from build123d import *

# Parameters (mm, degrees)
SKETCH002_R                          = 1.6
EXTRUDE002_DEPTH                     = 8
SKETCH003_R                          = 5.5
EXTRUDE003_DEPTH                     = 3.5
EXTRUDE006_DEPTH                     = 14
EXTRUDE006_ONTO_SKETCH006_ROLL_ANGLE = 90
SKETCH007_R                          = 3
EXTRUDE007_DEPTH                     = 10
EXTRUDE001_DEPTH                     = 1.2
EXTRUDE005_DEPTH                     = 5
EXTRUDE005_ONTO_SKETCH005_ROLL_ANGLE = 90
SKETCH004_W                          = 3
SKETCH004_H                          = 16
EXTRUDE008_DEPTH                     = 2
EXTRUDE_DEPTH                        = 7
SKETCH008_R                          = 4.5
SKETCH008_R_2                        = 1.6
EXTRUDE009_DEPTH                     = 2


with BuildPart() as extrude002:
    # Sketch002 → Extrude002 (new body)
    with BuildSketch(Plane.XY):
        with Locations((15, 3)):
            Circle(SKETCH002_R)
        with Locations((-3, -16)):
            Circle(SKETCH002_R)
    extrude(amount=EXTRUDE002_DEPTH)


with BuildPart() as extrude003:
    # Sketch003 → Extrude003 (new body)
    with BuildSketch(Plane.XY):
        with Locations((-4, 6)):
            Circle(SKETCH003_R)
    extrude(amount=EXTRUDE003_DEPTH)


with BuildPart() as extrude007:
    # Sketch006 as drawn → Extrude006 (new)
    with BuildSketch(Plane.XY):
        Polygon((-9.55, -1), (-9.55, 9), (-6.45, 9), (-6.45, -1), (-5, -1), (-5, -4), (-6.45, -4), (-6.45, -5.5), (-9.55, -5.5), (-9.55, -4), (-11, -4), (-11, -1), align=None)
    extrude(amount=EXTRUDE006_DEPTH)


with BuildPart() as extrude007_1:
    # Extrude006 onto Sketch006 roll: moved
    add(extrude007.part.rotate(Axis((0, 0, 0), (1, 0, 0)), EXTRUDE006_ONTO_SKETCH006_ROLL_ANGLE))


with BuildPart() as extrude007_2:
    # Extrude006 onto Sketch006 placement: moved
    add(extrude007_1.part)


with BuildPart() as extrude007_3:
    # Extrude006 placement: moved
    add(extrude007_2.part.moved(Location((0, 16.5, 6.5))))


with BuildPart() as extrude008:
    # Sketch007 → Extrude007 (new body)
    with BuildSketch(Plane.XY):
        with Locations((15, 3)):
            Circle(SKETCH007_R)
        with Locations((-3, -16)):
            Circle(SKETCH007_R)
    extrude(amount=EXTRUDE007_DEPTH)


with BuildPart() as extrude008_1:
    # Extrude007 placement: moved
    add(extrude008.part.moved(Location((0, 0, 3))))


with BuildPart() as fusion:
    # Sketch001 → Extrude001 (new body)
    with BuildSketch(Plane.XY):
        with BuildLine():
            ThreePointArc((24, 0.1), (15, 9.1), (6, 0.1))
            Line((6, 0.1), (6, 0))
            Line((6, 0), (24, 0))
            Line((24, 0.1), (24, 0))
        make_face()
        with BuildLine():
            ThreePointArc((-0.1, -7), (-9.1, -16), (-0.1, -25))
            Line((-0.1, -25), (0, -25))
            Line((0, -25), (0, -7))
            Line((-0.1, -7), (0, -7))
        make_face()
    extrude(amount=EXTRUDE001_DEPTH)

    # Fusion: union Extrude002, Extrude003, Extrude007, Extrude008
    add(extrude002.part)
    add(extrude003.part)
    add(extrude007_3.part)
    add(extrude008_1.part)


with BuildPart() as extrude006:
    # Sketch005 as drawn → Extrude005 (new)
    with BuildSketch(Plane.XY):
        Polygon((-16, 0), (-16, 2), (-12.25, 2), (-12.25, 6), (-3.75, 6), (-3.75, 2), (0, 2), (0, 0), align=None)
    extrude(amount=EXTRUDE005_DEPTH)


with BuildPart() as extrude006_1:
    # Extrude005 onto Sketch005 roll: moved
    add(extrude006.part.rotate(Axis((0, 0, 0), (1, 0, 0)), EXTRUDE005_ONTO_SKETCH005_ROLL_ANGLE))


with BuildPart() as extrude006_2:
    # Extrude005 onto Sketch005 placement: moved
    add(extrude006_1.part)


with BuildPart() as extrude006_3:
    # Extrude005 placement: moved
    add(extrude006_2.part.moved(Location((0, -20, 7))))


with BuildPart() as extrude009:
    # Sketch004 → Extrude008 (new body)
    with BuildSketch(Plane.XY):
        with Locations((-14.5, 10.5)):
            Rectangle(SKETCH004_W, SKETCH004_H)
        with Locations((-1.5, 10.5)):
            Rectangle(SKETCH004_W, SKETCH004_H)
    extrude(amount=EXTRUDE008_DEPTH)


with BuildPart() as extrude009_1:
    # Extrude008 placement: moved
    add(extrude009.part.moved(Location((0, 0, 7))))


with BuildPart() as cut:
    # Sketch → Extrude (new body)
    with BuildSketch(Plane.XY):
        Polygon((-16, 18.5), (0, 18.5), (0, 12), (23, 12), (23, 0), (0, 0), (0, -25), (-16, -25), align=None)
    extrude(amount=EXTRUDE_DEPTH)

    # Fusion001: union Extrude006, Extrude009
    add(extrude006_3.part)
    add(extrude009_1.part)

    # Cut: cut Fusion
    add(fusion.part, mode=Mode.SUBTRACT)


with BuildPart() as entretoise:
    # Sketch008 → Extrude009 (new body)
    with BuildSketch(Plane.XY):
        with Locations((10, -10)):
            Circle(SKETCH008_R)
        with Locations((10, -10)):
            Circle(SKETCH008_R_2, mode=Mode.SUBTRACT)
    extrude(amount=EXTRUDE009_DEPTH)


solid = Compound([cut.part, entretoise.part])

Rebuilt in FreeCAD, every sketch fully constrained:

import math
import FreeCAD as App
import Part
import Sketcher
from FreeCAD import Vector

doc = App.newDocument("Part")
body = doc.addObject("PartDesign::Body", "Body")
body.AllowCompound = True

sketch1 = doc.addObject("Sketcher::SketchObject", "Sketch")
body.addObject(sketch1)
sketch1.AttachmentSupport = (doc.XY_Plane, [""])
sketch1.MapMode = "FlatFace"
sketch1.addGeometry(Part.Circle(Vector(15, 3, 0), Vector(0, 0, 1), 1.6), False)
sketch1.addGeometry(Part.Circle(Vector(-3, -16, 0), Vector(0, 0, 1), 1.6), False)
sketch1.addConstraint(Sketcher.Constraint("Equal", 0, 1))
sketch1.addConstraint(Sketcher.Constraint("Diameter", 0, 3.2))
sketch1.addConstraint(Sketcher.Constraint("DistanceX", -1, 1, 0, 3, 15.0))
sketch1.addConstraint(Sketcher.Constraint("DistanceY", -1, 1, 0, 3, 3.0))
sketch1.addConstraint(Sketcher.Constraint("DistanceX", 1, 3, -1, 1, 3.0))
sketch1.addConstraint(Sketcher.Constraint("DistanceY", 1, 3, -1, 1, 16.0))
pad1 = doc.addObject("PartDesign::Pad", "Pad")
body.addObject(pad1)
pad1.Profile = sketch1
pad1.Length = 8
body2 = doc.addObject("PartDesign::Body", "Body001")

sketch2 = doc.addObject("Sketcher::SketchObject", "Sketch001")
body2.addObject(sketch2)
sketch2.AttachmentSupport = (doc.getObject("XY_Plane001"), [""])
sketch2.MapMode = "FlatFace"
sketch2.addGeometry(Part.Circle(Vector(-4, 6, 0), Vector(0, 0, 1), 5.5), False)
sketch2.addConstraint(Sketcher.Constraint("Diameter", 0, 11.0))
sketch2.addConstraint(Sketcher.Constraint("DistanceX", 0, 3, -1, 1, 4.0))
sketch2.addConstraint(Sketcher.Constraint("DistanceY", -1, 1, 0, 3, 6.0))
pad2 = doc.addObject("PartDesign::Pad", "Pad001")
body2.addObject(pad2)
pad2.Profile = sketch2
pad2.Length = 3.5
body3 = doc.addObject("PartDesign::Body", "Body002")

sketch3 = doc.addObject("Sketcher::SketchObject", "Sketch002")
body3.addObject(sketch3)
sketch3.AttachmentSupport = (doc.getObject("XY_Plane002"), [""])
sketch3.MapMode = "FlatFace"
sketch3.addGeometry(Part.LineSegment(Vector(-9.55, 9, 0), Vector(-9.55, -1, 0)), False)
sketch3.addGeometry(Part.LineSegment(Vector(-9.55, -1, 0), Vector(-11, -1, 0)), False)
sketch3.addGeometry(Part.LineSegment(Vector(-11, -1, 0), Vector(-11, -4, 0)), False)
sketch3.addGeometry(Part.LineSegment(Vector(-11, -4, 0), Vector(-9.55, -4, 0)), False)
sketch3.addGeometry(Part.LineSegment(Vector(-9.55, -4, 0), Vector(-9.55, -5.5, 0)), False)
sketch3.addGeometry(Part.LineSegment(Vector(-9.55, -5.5, 0), Vector(-6.45, -5.5, 0)), False)
sketch3.addGeometry(Part.LineSegment(Vector(-6.45, -5.5, 0), Vector(-6.45, -4, 0)), False)
sketch3.addGeometry(Part.LineSegment(Vector(-6.45, -4, 0), Vector(-5, -4, 0)), False)
sketch3.addGeometry(Part.LineSegment(Vector(-5, -4, 0), Vector(-5, -1, 0)), False)
sketch3.addGeometry(Part.LineSegment(Vector(-5, -1, 0), Vector(-6.45, -1, 0)), False)
sketch3.addGeometry(Part.LineSegment(Vector(-6.45, -1, 0), Vector(-6.45, 9, 0)), False)
sketch3.addGeometry(Part.LineSegment(Vector(-6.45, 9, 0), Vector(-9.55, 9, 0)), False)
sketch3.addConstraint(Sketcher.Constraint("Coincident", 0, 2, 1, 1))
sketch3.addConstraint(Sketcher.Constraint("Coincident", 1, 2, 2, 1))
sketch3.addConstraint(Sketcher.Constraint("Coincident", 2, 2, 3, 1))
sketch3.addConstraint(Sketcher.Constraint("Coincident", 3, 2, 4, 1))
sketch3.addConstraint(Sketcher.Constraint("Coincident", 4, 2, 5, 1))
sketch3.addConstraint(Sketcher.Constraint("Coincident", 5, 2, 6, 1))
sketch3.addConstraint(Sketcher.Constraint("Coincident", 6, 2, 7, 1))
sketch3.addConstraint(Sketcher.Constraint("Coincident", 7, 2, 8, 1))
sketch3.addConstraint(Sketcher.Constraint("Coincident", 8, 2, 9, 1))
sketch3.addConstraint(Sketcher.Constraint("Coincident", 9, 2, 10, 1))
sketch3.addConstraint(Sketcher.Constraint("Coincident", 10, 2, 11, 1))
sketch3.addConstraint(Sketcher.Constraint("Coincident", 11, 2, 0, 1))
sketch3.addConstraint(Sketcher.Constraint("Vertical", 0))
sketch3.addConstraint(Sketcher.Constraint("Horizontal", 1))
sketch3.addConstraint(Sketcher.Constraint("Vertical", 2))
sketch3.addConstraint(Sketcher.Constraint("Horizontal", 3))
sketch3.addConstraint(Sketcher.Constraint("Vertical", 4))
sketch3.addConstraint(Sketcher.Constraint("Horizontal", 5))
sketch3.addConstraint(Sketcher.Constraint("Vertical", 6))
sketch3.addConstraint(Sketcher.Constraint("Horizontal", 7))
sketch3.addConstraint(Sketcher.Constraint("Vertical", 8))
sketch3.addConstraint(Sketcher.Constraint("Horizontal", 9))
sketch3.addConstraint(Sketcher.Constraint("Vertical", 10))
sketch3.addConstraint(Sketcher.Constraint("Horizontal", 11))
sketch3.addConstraint(Sketcher.Constraint("Horizontal", 3, 2, 6, 2))
sketch3.addConstraint(Sketcher.Constraint("Horizontal", 1, 2, 8, 2))
sketch3.addConstraint(Sketcher.Constraint("Vertical", 0, 2, 3, 2))
sketch3.addConstraint(Sketcher.Constraint("Vertical", 6, 2, 9, 2))
sketch3.addConstraint(Sketcher.Constraint("Equal", 3, 7))
sketch3.addConstraint(Sketcher.Constraint("DistanceY", 0, 2, 0, 1, 10.0))
sketch3.addConstraint(Sketcher.Constraint("DistanceY", 2, 2, 2, 1, 3.0))
sketch3.addConstraint(Sketcher.Constraint("DistanceX", 5, 1, 5, 2, 3.1))
sketch3.addConstraint(Sketcher.Constraint("DistanceY", 4, 2, 4, 1, 1.5))
sketch3.addConstraint(Sketcher.Constraint("DistanceY", 0, 2, -1, 1, 1.0))
sketch3.addConstraint(Sketcher.Constraint("DistanceX", 1, 2, -1, 1, 11.0))
sketch3.addConstraint(Sketcher.Constraint("DistanceX", 7, 2, -1, 1, 5.0))
pad3 = doc.addObject("PartDesign::Pad", "Pad002")
body3.addObject(pad3)
pad3.Profile = sketch3
pad3.Length = 14
body4 = doc.addObject("PartDesign::Body", "Body003")
doc.recompute()

body3.Placement = App.Placement(Vector(0, 0, 0), App.Rotation(Vector(1, 0, 0), 90))
boolean = doc.addObject("PartDesign::Boolean", "Boolean")
body4.addObject(boolean)
boolean.Type = "Fuse"
boolean.addObjects([body3])
body5 = doc.addObject("PartDesign::Body", "Body004")
doc.recompute()

body4.Placement = App.Placement(Vector(0, 16.5, 6.5), App.Rotation(Vector(0, 0, 1), 0))
boolean2 = doc.addObject("PartDesign::Boolean", "Boolean001")
body5.addObject(boolean2)
boolean2.Type = "Fuse"
boolean2.addObjects([body4])
body6 = doc.addObject("PartDesign::Body", "Body005")
body6.AllowCompound = True

sketch4 = doc.addObject("Sketcher::SketchObject", "Sketch003")
body6.addObject(sketch4)
sketch4.AttachmentSupport = (doc.getObject("XY_Plane005"), [""])
sketch4.MapMode = "FlatFace"
sketch4.addGeometry(Part.Circle(Vector(15, 3, 0), Vector(0, 0, 1), 3), False)
sketch4.addGeometry(Part.Circle(Vector(-3, -16, 0), Vector(0, 0, 1), 3), False)
sketch4.addConstraint(Sketcher.Constraint("Equal", 0, 1))
sketch4.addConstraint(Sketcher.Constraint("Diameter", 0, 6.0))
sketch4.addConstraint(Sketcher.Constraint("DistanceX", -1, 1, 0, 3, 15.0))
sketch4.addConstraint(Sketcher.Constraint("DistanceY", -1, 1, 0, 3, 3.0))
sketch4.addConstraint(Sketcher.Constraint("DistanceX", 1, 3, -1, 1, 3.0))
sketch4.addConstraint(Sketcher.Constraint("DistanceY", 1, 3, -1, 1, 16.0))
pad4 = doc.addObject("PartDesign::Pad", "Pad003")
body6.addObject(pad4)
pad4.Profile = sketch4
pad4.Length = 10
body7 = doc.addObject("PartDesign::Body", "Body006")
body7.AllowCompound = True
doc.recompute()

body6.Placement = App.Placement(Vector(0, 0, 3), App.Rotation(Vector(0, 0, 1), 0))
boolean3 = doc.addObject("PartDesign::Boolean", "Boolean002")
body7.addObject(boolean3)
boolean3.Type = "Fuse"
boolean3.addObjects([body6])
body8 = doc.addObject("PartDesign::Body", "Body007")
body8.AllowCompound = True

sketch5 = doc.addObject("Sketcher::SketchObject", "Sketch004")
body8.addObject(sketch5)
sketch5.AttachmentSupport = (doc.getObject("XY_Plane007"), [""])
sketch5.MapMode = "FlatFace"
sketch5.addGeometry(Part.ArcOfCircle(Part.Circle(Vector(15, 0.1, 0), Vector(0, 0, 1), 9), math.radians(0), math.radians(180)), False)
sketch5.addGeometry(Part.LineSegment(Vector(6, 0.1, 0), Vector(6, 0, 0)), False)
sketch5.addGeometry(Part.LineSegment(Vector(6, 0, 0), Vector(24, 0, 0)), False)
sketch5.addGeometry(Part.LineSegment(Vector(24, 0, 0), Vector(24, 0.1, 0)), False)
sketch5.addGeometry(Part.ArcOfCircle(Part.Circle(Vector(-0.1, -16, 0), Vector(0, 0, 1), 9), math.radians(90), math.radians(270)), False)
sketch5.addGeometry(Part.LineSegment(Vector(-0.1, -25, 0), Vector(0, -25, 0)), False)
sketch5.addGeometry(Part.LineSegment(Vector(0, -25, 0), Vector(0, -7, 0)), False)
sketch5.addGeometry(Part.LineSegment(Vector(0, -7, 0), Vector(-0.1, -7, 0)), False)
sketch5.addConstraint(Sketcher.Constraint("Tangent", 0, 2, 1, 1))
sketch5.addConstraint(Sketcher.Constraint("Coincident", 1, 2, 2, 1))
sketch5.addConstraint(Sketcher.Constraint("Coincident", 2, 2, 3, 1))
sketch5.addConstraint(Sketcher.Constraint("Tangent", 3, 2, 0, 1))
sketch5.addConstraint(Sketcher.Constraint("Tangent", 4, 2, 5, 1))
sketch5.addConstraint(Sketcher.Constraint("Coincident", 5, 2, 6, 1))
sketch5.addConstraint(Sketcher.Constraint("Coincident", 6, 2, 7, 1))
sketch5.addConstraint(Sketcher.Constraint("Tangent", 7, 2, 4, 1))
sketch5.addConstraint(Sketcher.Constraint("Vertical", 1))
sketch5.addConstraint(Sketcher.Constraint("Horizontal", 2))
sketch5.addConstraint(Sketcher.Constraint("Vertical", 3))
sketch5.addConstraint(Sketcher.Constraint("Horizontal", 5))
sketch5.addConstraint(Sketcher.Constraint("Vertical", 6))
sketch5.addConstraint(Sketcher.Constraint("Horizontal", 7))
sketch5.addConstraint(Sketcher.Constraint("Equal", 0, 4))
sketch5.addConstraint(Sketcher.Constraint("PointOnObject", 1, 2, -1))
sketch5.addConstraint(Sketcher.Constraint("PointOnObject", 5, 2, -2))
sketch5.addConstraint(Sketcher.Constraint("Equal", 7, 1))
sketch5.addConstraint(Sketcher.Constraint("Radius", 0, 9.0))
sketch5.addConstraint(Sketcher.Constraint("DistanceX", 5, 1, 5, 2, 0.1))
sketch5.addConstraint(Sketcher.Constraint("DistanceX", -1, 1, 0, 3, 15.0))
sketch5.addConstraint(Sketcher.Constraint("DistanceY", 4, 3, -1, 1, 16.0))
pad5 = doc.addObject("PartDesign::Pad", "Pad004")
body8.addObject(pad5)
pad5.Profile = sketch5
pad5.Length = 1.2
doc.recompute()

boolean4 = doc.addObject("PartDesign::Boolean", "Boolean003")
body8.addObject(boolean4)
boolean4.Type = "Fuse"
boolean4.addObjects([body])
doc.recompute()

boolean5 = doc.addObject("PartDesign::Boolean", "Boolean004")
body8.addObject(boolean5)
boolean5.Type = "Fuse"
boolean5.addObjects([body2])
doc.recompute()

boolean6 = doc.addObject("PartDesign::Boolean", "Boolean005")
body8.addObject(boolean6)
boolean6.Type = "Fuse"
boolean6.addObjects([body5])
doc.recompute()

boolean7 = doc.addObject("PartDesign::Boolean", "Boolean006")
body8.addObject(boolean7)
boolean7.Type = "Fuse"
boolean7.addObjects([body7])
body9 = doc.addObject("PartDesign::Body", "Body008")

sketch6 = doc.addObject("Sketcher::SketchObject", "Sketch005")
body9.addObject(sketch6)
sketch6.AttachmentSupport = (doc.getObject("XY_Plane008"), [""])
sketch6.MapMode = "FlatFace"
sketch6.addGeometry(Part.LineSegment(Vector(-16, 2, 0), Vector(-16, 0, 0)), False)
sketch6.addGeometry(Part.LineSegment(Vector(-16, 0, 0), Vector(0, 0, 0)), False)
sketch6.addGeometry(Part.LineSegment(Vector(0, 0, 0), Vector(0, 2, 0)), False)
sketch6.addGeometry(Part.LineSegment(Vector(0, 2, 0), Vector(-3.75, 2, 0)), False)
sketch6.addGeometry(Part.LineSegment(Vector(-3.75, 2, 0), Vector(-3.75, 6, 0)), False)
sketch6.addGeometry(Part.LineSegment(Vector(-3.75, 6, 0), Vector(-12.25, 6, 0)), False)
sketch6.addGeometry(Part.LineSegment(Vector(-12.25, 6, 0), Vector(-12.25, 2, 0)), False)
sketch6.addGeometry(Part.LineSegment(Vector(-12.25, 2, 0), Vector(-16, 2, 0)), False)
sketch6.addConstraint(Sketcher.Constraint("Coincident", 0, 2, 1, 1))
sketch6.addConstraint(Sketcher.Constraint("Coincident", 1, 2, 2, 1))
sketch6.addConstraint(Sketcher.Constraint("Coincident", 2, 2, 3, 1))
sketch6.addConstraint(Sketcher.Constraint("Coincident", 3, 2, 4, 1))
sketch6.addConstraint(Sketcher.Constraint("Coincident", 4, 2, 5, 1))
sketch6.addConstraint(Sketcher.Constraint("Coincident", 5, 2, 6, 1))
sketch6.addConstraint(Sketcher.Constraint("Coincident", 6, 2, 7, 1))
sketch6.addConstraint(Sketcher.Constraint("Coincident", 7, 2, 0, 1))
sketch6.addConstraint(Sketcher.Constraint("Vertical", 0))
sketch6.addConstraint(Sketcher.Constraint("Horizontal", 1))
sketch6.addConstraint(Sketcher.Constraint("Vertical", 2))
sketch6.addConstraint(Sketcher.Constraint("Horizontal", 3))
sketch6.addConstraint(Sketcher.Constraint("Vertical", 4))
sketch6.addConstraint(Sketcher.Constraint("Horizontal", 5))
sketch6.addConstraint(Sketcher.Constraint("Vertical", 6))
sketch6.addConstraint(Sketcher.Constraint("Horizontal", 7))
sketch6.addConstraint(Sketcher.Constraint("Coincident", 1, 2, -1, 1))
sketch6.addConstraint(Sketcher.Constraint("Horizontal", 3, 2, 6, 2))
sketch6.addConstraint(Sketcher.Constraint("Equal", 3, 7))
sketch6.addConstraint(Sketcher.Constraint("DistanceX", 1, 1, 1, 2, 16.0))
sketch6.addConstraint(Sketcher.Constraint("DistanceY", 0, 2, 0, 1, 2.0))
sketch6.addConstraint(Sketcher.Constraint("DistanceY", 4, 1, 4, 2, 4.0))
sketch6.addConstraint(Sketcher.Constraint("DistanceX", 5, 2, 5, 1, 8.5))
pad6 = doc.addObject("PartDesign::Pad", "Pad005")
body9.addObject(pad6)
pad6.Profile = sketch6
pad6.Length = 5
body10 = doc.addObject("PartDesign::Body", "Body009")
doc.recompute()

body9.Placement = App.Placement(Vector(0, 0, 0), App.Rotation(Vector(1, 0, 0), 90))
boolean8 = doc.addObject("PartDesign::Boolean", "Boolean007")
body10.addObject(boolean8)
boolean8.Type = "Fuse"
boolean8.addObjects([body9])
body11 = doc.addObject("PartDesign::Body", "Body010")
doc.recompute()

body10.Placement = App.Placement(Vector(0, -20, 7), App.Rotation(Vector(0, 0, 1), 0))
boolean9 = doc.addObject("PartDesign::Boolean", "Boolean008")
body11.addObject(boolean9)
boolean9.Type = "Fuse"
boolean9.addObjects([body10])
body12 = doc.addObject("PartDesign::Body", "Body011")
body12.AllowCompound = True

sketch7 = doc.addObject("Sketcher::SketchObject", "Sketch006")
body12.addObject(sketch7)
sketch7.AttachmentSupport = (doc.getObject("XY_Plane011"), [""])
sketch7.MapMode = "FlatFace"
sketch7.addGeometry(Part.LineSegment(Vector(-16, 18.5, 0), Vector(-16, 2.5, 0)), False)
sketch7.addGeometry(Part.LineSegment(Vector(-16, 2.5, 0), Vector(-13, 2.5, 0)), False)
sketch7.addGeometry(Part.LineSegment(Vector(-13, 2.5, 0), Vector(-13, 18.5, 0)), False)
sketch7.addGeometry(Part.LineSegment(Vector(-13, 18.5, 0), Vector(-16, 18.5, 0)), False)
sketch7.addGeometry(Part.LineSegment(Vector(-3, 18.5, 0), Vector(-3, 2.5, 0)), False)
sketch7.addGeometry(Part.LineSegment(Vector(-3, 2.5, 0), Vector(0, 2.5, 0)), False)
sketch7.addGeometry(Part.LineSegment(Vector(0, 2.5, 0), Vector(0, 18.5, 0)), False)
sketch7.addGeometry(Part.LineSegment(Vector(0, 18.5, 0), Vector(-3, 18.5, 0)), False)
sketch7.addConstraint(Sketcher.Constraint("Coincident", 0, 2, 1, 1))
sketch7.addConstraint(Sketcher.Constraint("Coincident", 1, 2, 2, 1))
sketch7.addConstraint(Sketcher.Constraint("Coincident", 2, 2, 3, 1))
sketch7.addConstraint(Sketcher.Constraint("Coincident", 3, 2, 0, 1))
sketch7.addConstraint(Sketcher.Constraint("Coincident", 4, 2, 5, 1))
sketch7.addConstraint(Sketcher.Constraint("Coincident", 5, 2, 6, 1))
sketch7.addConstraint(Sketcher.Constraint("Coincident", 6, 2, 7, 1))
sketch7.addConstraint(Sketcher.Constraint("Coincident", 7, 2, 4, 1))
sketch7.addConstraint(Sketcher.Constraint("Vertical", 0))
sketch7.addConstraint(Sketcher.Constraint("Horizontal", 1))
sketch7.addConstraint(Sketcher.Constraint("Vertical", 2))
sketch7.addConstraint(Sketcher.Constraint("Horizontal", 3))
sketch7.addConstraint(Sketcher.Constraint("Vertical", 4))
sketch7.addConstraint(Sketcher.Constraint("Horizontal", 5))
sketch7.addConstraint(Sketcher.Constraint("Vertical", 6))
sketch7.addConstraint(Sketcher.Constraint("Horizontal", 7))
sketch7.addConstraint(Sketcher.Constraint("PointOnObject", 5, 2, -2))
sketch7.addConstraint(Sketcher.Constraint("Horizontal", 1, 2, 4, 2))
sketch7.addConstraint(Sketcher.Constraint("Horizontal", 3, 2, 6, 2))
sketch7.addConstraint(Sketcher.Constraint("Equal", 3, 5))
sketch7.addConstraint(Sketcher.Constraint("DistanceX", 1, 1, 1, 2, 3.0))
sketch7.addConstraint(Sketcher.Constraint("DistanceY", 0, 2, 0, 1, 16.0))
sketch7.addConstraint(Sketcher.Constraint("DistanceX", 0, 2, -1, 1, 16.0))
sketch7.addConstraint(Sketcher.Constraint("DistanceY", -1, 1, 0, 2, 2.5))
pad7 = doc.addObject("PartDesign::Pad", "Pad006")
body12.addObject(pad7)
pad7.Profile = sketch7
pad7.Length = 2
body13 = doc.addObject("PartDesign::Body", "Body012")
body13.AllowCompound = True
doc.recompute()

body12.Placement = App.Placement(Vector(0, 0, 7), App.Rotation(Vector(0, 0, 1), 0))
boolean10 = doc.addObject("PartDesign::Boolean", "Boolean009")
body13.addObject(boolean10)
boolean10.Type = "Fuse"
boolean10.addObjects([body12])
body14 = doc.addObject("PartDesign::Body", "Body013")

sketch8 = doc.addObject("Sketcher::SketchObject", "Sketch007")
body14.addObject(sketch8)
sketch8.AttachmentSupport = (doc.getObject("XY_Plane013"), [""])
sketch8.MapMode = "FlatFace"
sketch8.addGeometry(Part.LineSegment(Vector(0, 18.5, 0), Vector(-16, 18.5, 0)), False)
sketch8.addGeometry(Part.LineSegment(Vector(-16, 18.5, 0), Vector(-16, -25, 0)), False)
sketch8.addGeometry(Part.LineSegment(Vector(-16, -25, 0), Vector(0, -25, 0)), False)
sketch8.addGeometry(Part.LineSegment(Vector(0, -25, 0), Vector(0, 0, 0)), False)
sketch8.addGeometry(Part.LineSegment(Vector(0, 0, 0), Vector(23, 0, 0)), False)
sketch8.addGeometry(Part.LineSegment(Vector(23, 0, 0), Vector(23, 12, 0)), False)
sketch8.addGeometry(Part.LineSegment(Vector(23, 12, 0), Vector(0, 12, 0)), False)
sketch8.addGeometry(Part.LineSegment(Vector(0, 12, 0), Vector(0, 18.5, 0)), False)
sketch8.addConstraint(Sketcher.Constraint("Coincident", 0, 2, 1, 1))
sketch8.addConstraint(Sketcher.Constraint("Coincident", 1, 2, 2, 1))
sketch8.addConstraint(Sketcher.Constraint("Coincident", 2, 2, 3, 1))
sketch8.addConstraint(Sketcher.Constraint("Coincident", 3, 2, 4, 1))
sketch8.addConstraint(Sketcher.Constraint("Coincident", 4, 2, 5, 1))
sketch8.addConstraint(Sketcher.Constraint("Coincident", 5, 2, 6, 1))
sketch8.addConstraint(Sketcher.Constraint("Coincident", 6, 2, 7, 1))
sketch8.addConstraint(Sketcher.Constraint("Coincident", 7, 2, 0, 1))
sketch8.addConstraint(Sketcher.Constraint("Horizontal", 0))
sketch8.addConstraint(Sketcher.Constraint("Vertical", 1))
sketch8.addConstraint(Sketcher.Constraint("Horizontal", 2))
sketch8.addConstraint(Sketcher.Constraint("Vertical", 3))
sketch8.addConstraint(Sketcher.Constraint("Horizontal", 4))
sketch8.addConstraint(Sketcher.Constraint("Vertical", 5))
sketch8.addConstraint(Sketcher.Constraint("Horizontal", 6))
sketch8.addConstraint(Sketcher.Constraint("Vertical", 7))
sketch8.addConstraint(Sketcher.Constraint("Coincident", 3, 2, -1, 1))
sketch8.addConstraint(Sketcher.Constraint("PointOnObject", 6, 2, -2))
sketch8.addConstraint(Sketcher.Constraint("DistanceX", 0, 2, 0, 1, 16.0))
sketch8.addConstraint(Sketcher.Constraint("DistanceX", 4, 1, 4, 2, 23.0))
sketch8.addConstraint(Sketcher.Constraint("DistanceY", 3, 1, 3, 2, 25.0))
sketch8.addConstraint(Sketcher.Constraint("DistanceY", 5, 1, 5, 2, 12.0))
sketch8.addConstraint(Sketcher.Constraint("DistanceY", 1, 2, 1, 1, 43.5))
pad8 = doc.addObject("PartDesign::Pad", "Pad007")
body14.addObject(pad8)
pad8.Profile = sketch8
pad8.Length = 7
doc.recompute()

boolean11 = doc.addObject("PartDesign::Boolean", "Boolean010")
body14.addObject(boolean11)
boolean11.Type = "Fuse"
boolean11.addObjects([body11])
doc.recompute()

boolean12 = doc.addObject("PartDesign::Boolean", "Boolean011")
body14.addObject(boolean12)
boolean12.Type = "Fuse"
boolean12.addObjects([body13])
doc.recompute()

boolean13 = doc.addObject("PartDesign::Boolean", "Boolean012")
body14.addObject(boolean13)
boolean13.Type = "Cut"
boolean13.addObjects([body8])
body15 = doc.addObject("PartDesign::Body", "Body014")

sketch9 = doc.addObject("Sketcher::SketchObject", "Sketch008")
body15.addObject(sketch9)
sketch9.AttachmentSupport = (doc.getObject("XY_Plane014"), [""])
sketch9.MapMode = "FlatFace"
sketch9.addGeometry(Part.Circle(Vector(10, -10, 0), Vector(0, 0, 1), 4.5), False)
sketch9.addGeometry(Part.Circle(Vector(10, -10, 0), Vector(0, 0, 1), 1.6), False)
sketch9.addConstraint(Sketcher.Constraint("Coincident", 1, 3, 0, 3))
sketch9.addConstraint(Sketcher.Constraint("Diameter", 0, 9.0))
sketch9.addConstraint(Sketcher.Constraint("Diameter", 1, 3.2))
sketch9.addConstraint(Sketcher.Constraint("DistanceX", -1, 1, 0, 3, 10.0))
sketch9.addConstraint(Sketcher.Constraint("DistanceY", 0, 3, -1, 1, 10.0))
pad9 = doc.addObject("PartDesign::Pad", "Pad008")
body15.addObject(pad9)
pad9.Profile = sketch9
pad9.Length = 2

doc.recompute()
